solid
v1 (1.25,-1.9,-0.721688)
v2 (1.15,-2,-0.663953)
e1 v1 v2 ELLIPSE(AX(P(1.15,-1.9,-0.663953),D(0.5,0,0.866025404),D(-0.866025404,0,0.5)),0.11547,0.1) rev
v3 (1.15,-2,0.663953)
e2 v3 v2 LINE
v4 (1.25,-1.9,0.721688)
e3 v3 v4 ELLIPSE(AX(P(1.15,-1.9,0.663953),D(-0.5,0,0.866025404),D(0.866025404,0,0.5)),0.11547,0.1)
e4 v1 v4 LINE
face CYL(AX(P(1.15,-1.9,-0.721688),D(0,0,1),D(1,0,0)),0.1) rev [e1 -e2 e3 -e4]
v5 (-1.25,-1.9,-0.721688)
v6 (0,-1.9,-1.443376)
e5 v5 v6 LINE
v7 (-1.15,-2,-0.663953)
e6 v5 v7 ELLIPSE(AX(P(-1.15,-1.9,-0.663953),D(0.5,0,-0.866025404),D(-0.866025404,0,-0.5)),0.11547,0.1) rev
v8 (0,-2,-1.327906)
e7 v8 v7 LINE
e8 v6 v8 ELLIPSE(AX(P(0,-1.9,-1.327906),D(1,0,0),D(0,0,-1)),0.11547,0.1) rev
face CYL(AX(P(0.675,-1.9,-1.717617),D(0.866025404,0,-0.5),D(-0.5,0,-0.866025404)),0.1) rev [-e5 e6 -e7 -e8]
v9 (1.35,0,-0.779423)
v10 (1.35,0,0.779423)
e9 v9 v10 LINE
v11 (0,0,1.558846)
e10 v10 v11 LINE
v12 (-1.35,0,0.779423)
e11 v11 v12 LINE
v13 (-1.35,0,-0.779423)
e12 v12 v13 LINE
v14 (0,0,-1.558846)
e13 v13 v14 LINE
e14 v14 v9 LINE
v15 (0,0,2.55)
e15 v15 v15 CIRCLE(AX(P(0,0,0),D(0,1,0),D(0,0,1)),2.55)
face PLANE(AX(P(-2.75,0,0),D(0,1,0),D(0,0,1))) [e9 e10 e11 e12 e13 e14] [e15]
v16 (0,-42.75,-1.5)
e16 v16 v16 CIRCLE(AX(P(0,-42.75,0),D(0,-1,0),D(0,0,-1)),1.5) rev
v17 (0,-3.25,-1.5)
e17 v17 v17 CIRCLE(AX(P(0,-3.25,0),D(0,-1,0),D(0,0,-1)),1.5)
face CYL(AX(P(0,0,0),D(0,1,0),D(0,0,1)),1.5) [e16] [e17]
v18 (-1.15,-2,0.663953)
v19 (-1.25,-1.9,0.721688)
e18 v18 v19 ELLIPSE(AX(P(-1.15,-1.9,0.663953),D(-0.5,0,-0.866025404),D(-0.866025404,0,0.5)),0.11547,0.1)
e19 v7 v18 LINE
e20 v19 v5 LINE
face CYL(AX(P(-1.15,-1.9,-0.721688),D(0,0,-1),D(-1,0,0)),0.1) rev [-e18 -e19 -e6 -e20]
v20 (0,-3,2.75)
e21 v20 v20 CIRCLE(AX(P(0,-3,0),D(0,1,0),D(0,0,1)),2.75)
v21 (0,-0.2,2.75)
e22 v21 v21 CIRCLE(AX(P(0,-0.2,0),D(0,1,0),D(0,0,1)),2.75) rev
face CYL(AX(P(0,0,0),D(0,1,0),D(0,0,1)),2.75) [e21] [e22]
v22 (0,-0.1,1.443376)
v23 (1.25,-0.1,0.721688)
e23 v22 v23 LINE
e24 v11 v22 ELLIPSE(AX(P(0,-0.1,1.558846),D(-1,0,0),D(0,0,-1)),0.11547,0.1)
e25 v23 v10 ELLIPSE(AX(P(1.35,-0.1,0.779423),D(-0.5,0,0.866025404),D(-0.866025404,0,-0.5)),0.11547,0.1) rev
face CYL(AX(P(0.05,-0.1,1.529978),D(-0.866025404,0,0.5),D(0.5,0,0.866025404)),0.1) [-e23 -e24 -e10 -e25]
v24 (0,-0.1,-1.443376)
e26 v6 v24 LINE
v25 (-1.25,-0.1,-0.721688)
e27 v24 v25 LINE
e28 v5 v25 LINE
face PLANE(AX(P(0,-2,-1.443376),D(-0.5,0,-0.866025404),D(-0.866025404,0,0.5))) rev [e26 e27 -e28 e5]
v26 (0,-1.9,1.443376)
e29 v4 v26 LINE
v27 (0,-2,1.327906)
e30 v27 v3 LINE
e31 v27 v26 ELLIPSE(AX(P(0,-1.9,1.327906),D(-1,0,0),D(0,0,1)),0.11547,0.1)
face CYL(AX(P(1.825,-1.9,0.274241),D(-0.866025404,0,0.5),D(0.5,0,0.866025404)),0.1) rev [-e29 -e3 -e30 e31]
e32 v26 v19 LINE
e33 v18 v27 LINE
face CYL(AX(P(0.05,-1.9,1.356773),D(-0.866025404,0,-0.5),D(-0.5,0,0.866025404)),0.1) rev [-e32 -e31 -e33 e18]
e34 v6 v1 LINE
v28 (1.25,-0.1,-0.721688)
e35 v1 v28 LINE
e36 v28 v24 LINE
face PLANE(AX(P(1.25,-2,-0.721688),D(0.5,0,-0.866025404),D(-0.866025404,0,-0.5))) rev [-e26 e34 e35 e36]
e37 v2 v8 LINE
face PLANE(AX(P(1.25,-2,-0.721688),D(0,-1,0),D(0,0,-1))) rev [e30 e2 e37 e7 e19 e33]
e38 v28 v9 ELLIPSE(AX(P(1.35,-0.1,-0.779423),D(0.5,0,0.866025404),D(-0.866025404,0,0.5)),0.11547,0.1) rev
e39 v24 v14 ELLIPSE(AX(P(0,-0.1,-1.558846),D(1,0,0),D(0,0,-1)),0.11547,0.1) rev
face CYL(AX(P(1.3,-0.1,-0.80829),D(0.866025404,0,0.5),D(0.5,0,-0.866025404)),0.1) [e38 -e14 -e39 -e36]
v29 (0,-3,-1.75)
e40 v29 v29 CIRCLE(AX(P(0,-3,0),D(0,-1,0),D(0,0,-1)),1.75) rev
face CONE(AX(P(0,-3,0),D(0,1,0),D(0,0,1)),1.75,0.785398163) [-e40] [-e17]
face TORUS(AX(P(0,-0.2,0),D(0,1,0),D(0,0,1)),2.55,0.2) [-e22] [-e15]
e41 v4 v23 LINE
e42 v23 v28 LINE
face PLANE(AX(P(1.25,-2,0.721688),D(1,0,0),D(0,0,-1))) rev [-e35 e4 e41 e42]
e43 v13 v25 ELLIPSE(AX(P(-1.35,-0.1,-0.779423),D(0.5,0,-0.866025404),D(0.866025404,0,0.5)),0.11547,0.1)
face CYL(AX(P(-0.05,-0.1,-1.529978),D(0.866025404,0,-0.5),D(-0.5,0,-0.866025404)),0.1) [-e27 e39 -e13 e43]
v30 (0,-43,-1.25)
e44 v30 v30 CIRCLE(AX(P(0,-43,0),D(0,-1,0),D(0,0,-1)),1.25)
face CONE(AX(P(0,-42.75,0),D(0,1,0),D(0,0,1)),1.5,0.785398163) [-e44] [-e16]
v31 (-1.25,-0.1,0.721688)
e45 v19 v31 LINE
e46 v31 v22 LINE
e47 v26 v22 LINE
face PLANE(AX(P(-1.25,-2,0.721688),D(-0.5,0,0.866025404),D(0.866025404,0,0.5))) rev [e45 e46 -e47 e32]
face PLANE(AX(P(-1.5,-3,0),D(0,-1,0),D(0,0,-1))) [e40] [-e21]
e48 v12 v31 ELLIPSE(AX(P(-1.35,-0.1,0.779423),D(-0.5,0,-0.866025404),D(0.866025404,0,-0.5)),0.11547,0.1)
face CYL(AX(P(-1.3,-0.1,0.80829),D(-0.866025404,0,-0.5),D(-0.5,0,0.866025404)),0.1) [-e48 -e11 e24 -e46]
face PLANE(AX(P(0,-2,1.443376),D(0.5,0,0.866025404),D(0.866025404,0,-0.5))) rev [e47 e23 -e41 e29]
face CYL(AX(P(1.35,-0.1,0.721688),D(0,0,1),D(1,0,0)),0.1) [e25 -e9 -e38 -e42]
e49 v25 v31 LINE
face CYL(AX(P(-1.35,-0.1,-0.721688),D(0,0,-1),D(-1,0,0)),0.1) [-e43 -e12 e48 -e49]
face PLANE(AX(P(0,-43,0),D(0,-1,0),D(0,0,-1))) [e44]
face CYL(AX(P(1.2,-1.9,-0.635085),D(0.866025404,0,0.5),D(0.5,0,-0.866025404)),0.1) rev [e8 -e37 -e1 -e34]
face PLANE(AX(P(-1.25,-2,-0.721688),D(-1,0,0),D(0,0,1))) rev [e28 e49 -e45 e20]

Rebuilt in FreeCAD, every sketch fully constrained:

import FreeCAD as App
import Part
import Sketcher
from FreeCAD import Vector
Q = App.Units.Quantity


def edges_at(feature, points):
    """Names of the edges that pass closest to the given points."""
    edges = feature.Shape.Edges
    near = lambda p: min(range(len(edges)), key=lambda i: edges[i].distToShape(Part.Vertex(*p))[0])
    return sorted({f"Edge{near(p) + 1}" for p in points})


def add_polygon(sketch, points):
    """Adds a closed chain of lines whose ends are joined by coincident constraints."""
    first, n = sketch.GeometryCount, len(points)
    for a, b in zip(points, points[1:] + points[:1]):
        sketch.addGeometry(Part.LineSegment(App.Vector(*a, 0), App.Vector(*b, 0)), False)
    for i in range(n):
        sketch.addConstraint(Sketcher.Constraint("Coincident", first + i, 2, first + (i + 1) % n, 1))

doc = App.newDocument("Part")
body = doc.addObject("PartDesign::Body", "Body")

sketch1 = body.newObject("Sketcher::SketchObject", "Sketch")
sketch1.AttachmentSupport = (doc.getObject("XY_Plane"), [""])
sketch1.MapMode = "FlatFace"
add_polygon(sketch1, [(-1.5, -43), (0, -43), (0, 0), (-2.8, 0), (-2.8, -3), (-1.5, -3)])
sketch1.addConstraint(Sketcher.Constraint("Horizontal", 0))
sketch1.addConstraint(Sketcher.Constraint("Vertical", 1))
sketch1.addConstraint(Sketcher.Constraint("Horizontal", 2))
sketch1.addConstraint(Sketcher.Constraint("Vertical", 3))
sketch1.addConstraint(Sketcher.Constraint("Horizontal", 4))
sketch1.addConstraint(Sketcher.Constraint("Vertical", 5))
sketch1.addConstraint(Sketcher.Constraint("Coincident", 1, 2, -1, 1))
sketch1.addConstraint(Sketcher.Constraint("DistanceY", 1, 1, 1, 2, Q("43 mm")))
sketch1.addConstraint(Sketcher.Constraint("DistanceY", 3, 2, 3, 1, Q("3 mm")))
sketch1.addConstraint(Sketcher.Constraint("DistanceX", 0, 1, 0, 2, Q("1.5 mm")))
sketch1.addConstraint(Sketcher.Constraint("DistanceX", 2, 2, 2, 1, Q("2.75 mm")))
revolution = body.newObject("PartDesign::Revolution", "Revolution")
revolution.Profile = sketch1
revolution.ReferenceAxis = (sketch1, ["V_Axis"])
revolution.Angle = 360
doc.recompute()

chamfer = body.newObject("PartDesign::Chamfer", "Chamfer")
chamfer.Base = (revolution, edges_at(revolution, [(1.5, -3, 0), (1.5, -43, 0)]))
chamfer.Size = 0.25
doc.recompute()

fillet = body.newObject("PartDesign::Fillet", "Fillet")
fillet.Base = (chamfer, edges_at(chamfer, [(2.75, 0, 0)]))
fillet.Radius = 0.2

sketch2 = body.newObject("Sketcher::SketchObject", "Sketch001")
sketch2.AttachmentSupport = (doc.getObject("XZ_Plane"), [""])
sketch2.MapMode = "FlatFace"
add_polygon(sketch2, [(0, -1.4), (-1.2, -0.7), (-1.2, 0.7), (0, 1.4), (1.2, 0.7), (1.2, -0.7)])
sketch2.addConstraint(Sketcher.Constraint("Vertical", 1))
sketch2.addConstraint(Sketcher.Constraint("Vertical", 4))
sketch2.addConstraint(Sketcher.Constraint("Symmetric", 0, 2, 3, 2, -1, 1))
sketch2.addConstraint(Sketcher.Constraint("Symmetric", 2, 2, 5, 2, -1, 1))
sketch2.addConstraint(Sketcher.Constraint("PointOnObject", 2, 2, -2))
sketch2.addConstraint(Sketcher.Constraint("Parallel", 2, 5))
sketch2.addConstraint(Sketcher.Constraint("Horizontal", 1, 2, 3, 2))
sketch2.addConstraint(Sketcher.Constraint("Angle", 0, Q("150 deg")))
sketch2.addConstraint(Sketcher.Constraint("DistanceX", 1, 2, 3, 2, Q("2.5 mm")))
sketch2.addConstraint(Sketcher.Constraint("DistanceY", 1, 1, 1, 2, Q("1.443376 mm")))
pocket1 = body.newObject("PartDesign::Pocket", "Pocket")
pocket1.Profile = sketch2
pocket1.Length = 2
pocket1.Reversed = True
doc.recompute()

fillet2 = body.newObject("PartDesign::Fillet", "Fillet001")
fillet2.Base = (pocket1, edges_at(pocket1, [
    (0.625, -2, -1.083),
    (1.25, -2, 0),
    (0.625, -2, 1.083),
    (-0.625, -2, 1.083),
    (-1.25, -2, 0),
    (-0.625, -2, -1.083),
    (0.625, 0, -1.083),
    (-0.625, 0, -1.083),
    (-1.25, 0, 0),
    (-0.625, 0, 1.083),
    (0.625, 0, 1.083),
    (1.25, 0, 0),
]))
fillet2.Radius = 0.1

doc.recompute()
